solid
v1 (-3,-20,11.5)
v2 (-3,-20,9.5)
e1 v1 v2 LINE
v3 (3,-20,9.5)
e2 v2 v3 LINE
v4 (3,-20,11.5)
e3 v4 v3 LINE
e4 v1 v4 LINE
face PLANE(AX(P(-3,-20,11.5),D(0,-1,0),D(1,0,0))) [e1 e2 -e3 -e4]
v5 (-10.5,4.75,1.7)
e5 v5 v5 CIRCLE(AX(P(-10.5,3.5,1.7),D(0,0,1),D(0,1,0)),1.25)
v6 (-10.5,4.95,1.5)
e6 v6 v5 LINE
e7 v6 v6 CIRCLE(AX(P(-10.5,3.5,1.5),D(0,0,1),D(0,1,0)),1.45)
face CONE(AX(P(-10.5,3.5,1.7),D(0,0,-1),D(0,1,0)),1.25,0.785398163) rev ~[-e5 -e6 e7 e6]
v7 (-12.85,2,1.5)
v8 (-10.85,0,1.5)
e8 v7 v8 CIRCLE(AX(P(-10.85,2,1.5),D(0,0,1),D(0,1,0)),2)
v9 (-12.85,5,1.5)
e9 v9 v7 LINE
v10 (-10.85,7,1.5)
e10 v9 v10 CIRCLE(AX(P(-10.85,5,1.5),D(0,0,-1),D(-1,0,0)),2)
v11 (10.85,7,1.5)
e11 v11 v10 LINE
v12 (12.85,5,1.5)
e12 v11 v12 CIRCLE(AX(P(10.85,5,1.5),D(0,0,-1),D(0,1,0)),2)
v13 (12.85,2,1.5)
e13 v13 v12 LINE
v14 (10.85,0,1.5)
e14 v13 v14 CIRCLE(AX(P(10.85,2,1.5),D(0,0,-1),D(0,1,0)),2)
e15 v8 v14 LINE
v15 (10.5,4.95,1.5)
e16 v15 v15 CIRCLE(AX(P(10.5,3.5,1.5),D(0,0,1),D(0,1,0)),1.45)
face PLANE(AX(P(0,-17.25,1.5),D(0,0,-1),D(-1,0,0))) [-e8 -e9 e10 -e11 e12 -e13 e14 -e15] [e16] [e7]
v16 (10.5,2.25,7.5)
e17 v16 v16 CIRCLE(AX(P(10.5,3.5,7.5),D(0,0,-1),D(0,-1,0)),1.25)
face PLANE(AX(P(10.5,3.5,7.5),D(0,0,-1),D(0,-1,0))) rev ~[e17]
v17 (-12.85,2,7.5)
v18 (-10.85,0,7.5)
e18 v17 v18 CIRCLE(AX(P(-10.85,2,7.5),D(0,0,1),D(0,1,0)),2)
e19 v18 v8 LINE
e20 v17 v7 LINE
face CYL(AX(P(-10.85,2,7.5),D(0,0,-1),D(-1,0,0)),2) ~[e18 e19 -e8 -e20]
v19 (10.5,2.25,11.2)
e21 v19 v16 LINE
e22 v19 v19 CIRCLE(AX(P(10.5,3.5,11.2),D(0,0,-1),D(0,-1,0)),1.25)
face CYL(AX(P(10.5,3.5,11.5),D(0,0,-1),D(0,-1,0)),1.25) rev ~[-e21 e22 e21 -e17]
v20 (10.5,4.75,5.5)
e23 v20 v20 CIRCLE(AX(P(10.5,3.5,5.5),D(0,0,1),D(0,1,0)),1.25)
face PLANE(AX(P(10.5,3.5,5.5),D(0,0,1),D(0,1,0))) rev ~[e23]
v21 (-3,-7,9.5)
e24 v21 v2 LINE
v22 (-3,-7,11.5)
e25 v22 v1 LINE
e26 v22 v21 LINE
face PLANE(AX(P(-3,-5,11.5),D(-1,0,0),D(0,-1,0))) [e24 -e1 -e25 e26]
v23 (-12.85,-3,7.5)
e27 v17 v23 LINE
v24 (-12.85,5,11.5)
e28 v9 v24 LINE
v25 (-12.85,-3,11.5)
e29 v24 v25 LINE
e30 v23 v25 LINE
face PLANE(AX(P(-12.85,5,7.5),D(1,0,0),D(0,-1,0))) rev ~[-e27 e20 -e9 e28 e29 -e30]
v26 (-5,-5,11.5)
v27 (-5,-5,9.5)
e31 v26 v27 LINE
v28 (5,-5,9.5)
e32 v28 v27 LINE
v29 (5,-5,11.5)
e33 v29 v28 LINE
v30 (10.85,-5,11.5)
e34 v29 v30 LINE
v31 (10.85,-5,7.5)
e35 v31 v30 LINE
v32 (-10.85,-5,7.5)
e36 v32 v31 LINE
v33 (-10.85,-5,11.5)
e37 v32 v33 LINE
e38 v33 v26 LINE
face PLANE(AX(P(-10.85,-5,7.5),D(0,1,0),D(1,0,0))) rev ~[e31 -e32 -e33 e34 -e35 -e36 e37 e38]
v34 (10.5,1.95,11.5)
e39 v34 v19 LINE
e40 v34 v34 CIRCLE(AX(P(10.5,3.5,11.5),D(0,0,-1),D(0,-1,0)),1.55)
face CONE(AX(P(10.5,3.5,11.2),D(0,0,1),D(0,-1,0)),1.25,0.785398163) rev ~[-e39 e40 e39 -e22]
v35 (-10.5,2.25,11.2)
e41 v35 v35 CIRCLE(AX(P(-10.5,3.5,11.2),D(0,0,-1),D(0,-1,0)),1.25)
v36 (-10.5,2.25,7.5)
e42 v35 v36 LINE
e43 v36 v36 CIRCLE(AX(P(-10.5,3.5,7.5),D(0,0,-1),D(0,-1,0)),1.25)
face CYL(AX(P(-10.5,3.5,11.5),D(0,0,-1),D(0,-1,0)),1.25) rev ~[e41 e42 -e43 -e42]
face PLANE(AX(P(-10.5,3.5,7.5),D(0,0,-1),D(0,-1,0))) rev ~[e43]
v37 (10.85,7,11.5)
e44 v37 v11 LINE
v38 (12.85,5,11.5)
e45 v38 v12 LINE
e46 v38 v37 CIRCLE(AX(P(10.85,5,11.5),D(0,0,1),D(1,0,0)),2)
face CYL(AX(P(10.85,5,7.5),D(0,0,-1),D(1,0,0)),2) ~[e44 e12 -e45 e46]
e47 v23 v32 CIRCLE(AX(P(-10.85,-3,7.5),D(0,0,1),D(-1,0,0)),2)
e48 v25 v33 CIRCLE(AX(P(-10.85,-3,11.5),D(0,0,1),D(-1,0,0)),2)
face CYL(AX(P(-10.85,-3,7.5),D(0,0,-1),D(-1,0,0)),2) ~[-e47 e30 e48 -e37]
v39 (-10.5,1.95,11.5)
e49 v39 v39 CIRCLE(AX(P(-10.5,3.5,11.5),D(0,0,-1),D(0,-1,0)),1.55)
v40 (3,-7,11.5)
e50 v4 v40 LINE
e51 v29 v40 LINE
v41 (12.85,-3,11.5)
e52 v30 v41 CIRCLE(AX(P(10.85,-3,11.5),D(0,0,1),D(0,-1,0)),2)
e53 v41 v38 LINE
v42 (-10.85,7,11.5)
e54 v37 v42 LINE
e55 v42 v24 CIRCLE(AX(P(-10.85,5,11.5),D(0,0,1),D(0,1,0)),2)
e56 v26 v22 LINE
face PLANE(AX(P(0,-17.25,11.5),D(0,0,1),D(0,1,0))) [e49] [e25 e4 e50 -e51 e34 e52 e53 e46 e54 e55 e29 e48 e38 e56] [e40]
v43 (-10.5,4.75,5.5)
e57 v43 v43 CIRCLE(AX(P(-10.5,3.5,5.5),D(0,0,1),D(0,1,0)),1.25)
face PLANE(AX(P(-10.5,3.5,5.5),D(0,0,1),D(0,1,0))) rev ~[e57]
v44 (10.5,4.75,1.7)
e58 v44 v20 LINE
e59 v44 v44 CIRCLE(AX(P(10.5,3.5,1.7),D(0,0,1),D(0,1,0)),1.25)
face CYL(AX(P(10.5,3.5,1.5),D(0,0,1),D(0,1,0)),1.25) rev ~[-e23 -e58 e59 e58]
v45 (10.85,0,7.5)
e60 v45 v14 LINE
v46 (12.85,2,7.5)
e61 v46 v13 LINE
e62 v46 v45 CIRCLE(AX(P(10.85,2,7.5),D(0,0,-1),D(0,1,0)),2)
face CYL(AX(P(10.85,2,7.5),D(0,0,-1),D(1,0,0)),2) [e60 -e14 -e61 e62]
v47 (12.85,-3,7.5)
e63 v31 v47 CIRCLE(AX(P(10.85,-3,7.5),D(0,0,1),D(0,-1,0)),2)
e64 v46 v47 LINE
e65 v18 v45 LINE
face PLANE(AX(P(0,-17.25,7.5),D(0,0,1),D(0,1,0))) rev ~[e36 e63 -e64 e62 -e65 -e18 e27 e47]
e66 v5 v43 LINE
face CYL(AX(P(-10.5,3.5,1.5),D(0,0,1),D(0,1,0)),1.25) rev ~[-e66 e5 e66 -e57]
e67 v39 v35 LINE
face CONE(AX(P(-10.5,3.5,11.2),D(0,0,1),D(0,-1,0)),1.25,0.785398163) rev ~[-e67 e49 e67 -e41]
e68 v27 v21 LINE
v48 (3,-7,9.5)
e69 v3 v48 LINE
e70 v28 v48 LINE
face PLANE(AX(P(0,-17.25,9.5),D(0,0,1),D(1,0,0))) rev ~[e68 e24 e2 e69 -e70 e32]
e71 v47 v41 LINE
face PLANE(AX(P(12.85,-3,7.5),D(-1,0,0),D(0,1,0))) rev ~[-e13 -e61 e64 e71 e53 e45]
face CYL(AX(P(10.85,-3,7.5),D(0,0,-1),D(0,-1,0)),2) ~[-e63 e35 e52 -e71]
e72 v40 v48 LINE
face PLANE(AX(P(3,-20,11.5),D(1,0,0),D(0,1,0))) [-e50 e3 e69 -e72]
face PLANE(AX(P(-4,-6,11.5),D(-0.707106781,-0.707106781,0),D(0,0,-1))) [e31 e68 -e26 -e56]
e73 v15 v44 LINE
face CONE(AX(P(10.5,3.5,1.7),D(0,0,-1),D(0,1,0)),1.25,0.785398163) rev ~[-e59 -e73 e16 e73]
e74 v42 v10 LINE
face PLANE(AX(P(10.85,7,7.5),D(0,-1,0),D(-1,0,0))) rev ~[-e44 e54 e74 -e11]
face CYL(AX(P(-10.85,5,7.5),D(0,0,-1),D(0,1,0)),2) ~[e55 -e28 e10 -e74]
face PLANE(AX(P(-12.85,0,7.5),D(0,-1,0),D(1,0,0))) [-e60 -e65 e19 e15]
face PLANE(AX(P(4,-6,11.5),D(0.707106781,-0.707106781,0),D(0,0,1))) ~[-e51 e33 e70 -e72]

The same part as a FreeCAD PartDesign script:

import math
import FreeCAD as App
import Part
import Sketcher

V = App.Vector
Q = App.Units.Quantity


def edges_at(feature, points):
    """Names of the edges that pass closest to the given points."""
    edges = feature.Shape.Edges
    near = lambda p: min(range(len(edges)), key=lambda i: edges[i].distToShape(Part.Vertex(*p))[0])
    return sorted({f"Edge{near(p) + 1}" for p in points})


def add_polygon(sketch, points):
    """Adds a closed chain of lines whose ends are joined by coincident constraints."""
    first, n = sketch.GeometryCount, len(points)
    for a, b in zip(points, points[1:] + points[:1]):
        sketch.addGeometry(Part.LineSegment(App.Vector(*a, 0), App.Vector(*b, 0)), False)
    for i in range(n):
        sketch.addConstraint(Sketcher.Constraint("Coincident", first + i, 2, first + (i + 1) % n, 1))

doc = App.newDocument("Part")
body = doc.addObject("PartDesign::Body", "Body")

# Sketch on XY plane
sketch1 = doc.addObject("Sketcher::SketchObject", "Sketch")
body.addObject(sketch1)
sketch1.AttachmentSupport = (doc.XY_Plane, [""])
sketch1.MapMode = "FlatFace"
sketch1.AttachmentOffset = App.Placement(V(0, 0, 7.5), App.Rotation())
sketch1.addGeometry(Part.ArcOfCircle(Part.Circle(V(-10.8, 5, 0), V(0, 0, 1), 2), math.radians(90), math.radians(180)), False)
sketch1.addGeometry(Part.LineSegment(V(-12.8, 5, 0), V(-12.8, -3, 0)), False)
sketch1.addGeometry(Part.ArcOfCircle(Part.Circle(V(-10.8, -3, 0), V(0, 0, 1), 2), math.radians(180), math.radians(270)), False)
sketch1.addGeometry(Part.LineSegment(V(-10.8, -5, 0), V(10.8, -5, 0)), False)
sketch1.addGeometry(Part.ArcOfCircle(Part.Circle(V(10.8, -3, 0), V(0, 0, 1), 2), math.radians(-90), math.radians(0)), False)
sketch1.addGeometry(Part.LineSegment(V(12.8, -3, 0), V(12.8, 5, 0)), False)
sketch1.addGeometry(Part.ArcOfCircle(Part.Circle(V(10.8, 5, 0), V(0, 0, 1), 2), math.radians(0), math.radians(90)), False)
sketch1.addGeometry(Part.LineSegment(V(10.8, 7, 0), V(-10.8, 7, 0)), False)
sketch1.addConstraint(Sketcher.Constraint("Tangent", 0, 2, 1, 1))
sketch1.addConstraint(Sketcher.Constraint("Tangent", 1, 2, 2, 1))
sketch1.addConstraint(Sketcher.Constraint("Tangent", 2, 2, 3, 1))
sketch1.addConstraint(Sketcher.Constraint("Tangent", 3, 2, 4, 1))
sketch1.addConstraint(Sketcher.Constraint("Tangent", 4, 2, 5, 1))
sketch1.addConstraint(Sketcher.Constraint("Tangent", 5, 2, 6, 1))
sketch1.addConstraint(Sketcher.Constraint("Tangent", 6, 2, 7, 1))
sketch1.addConstraint(Sketcher.Constraint("Tangent", 7, 2, 0, 1))
sketch1.addConstraint(Sketcher.Constraint("Vertical", 1))
sketch1.addConstraint(Sketcher.Constraint("Horizontal", 3))
sketch1.addConstraint(Sketcher.Constraint("Vertical", 5))
sketch1.addConstraint(Sketcher.Constraint("Horizontal", 7))
sketch1.addConstraint(Sketcher.Constraint("Equal", 0, 2))
sketch1.addConstraint(Sketcher.Constraint("Equal", 2, 4))
sketch1.addConstraint(Sketcher.Constraint("Equal", 4, 6))
sketch1.addConstraint(Sketcher.Constraint("Radius", 0, Q("2 mm")))
sketch1.addConstraint(Sketcher.Constraint("DistanceY", -1, 1, 0, 3, Q("5 mm")))
sketch1.addConstraint(Sketcher.Constraint("DistanceY", 2, 2, -1, 1, Q("5 mm")))
sketch1.addConstraint(Sketcher.Constraint("DistanceX", 3, 1, 3, 2, Q("21.7 mm")))
sketch1.addConstraint(Sketcher.Constraint("DistanceX", 0, 3, -1, 1, Q("10.85 mm")))
pad1 = doc.addObject("PartDesign::Pad", "Pad")
body.addObject(pad1)
pad1.Profile = sketch1
pad1.Length = 4

# Sketch on XY plane
sketch2 = doc.addObject("Sketcher::SketchObject", "Sketch001")
body.addObject(sketch2)
sketch2.AttachmentSupport = (doc.XY_Plane, [""])
sketch2.MapMode = "FlatFace"
sketch2.AttachmentOffset = App.Placement(V(0, 0, 7.5), App.Rotation())
sketch2.addGeometry(Part.LineSegment(V(12.8, 5, 0), V(12.8, 0, 0)), False)
sketch2.addGeometry(Part.LineSegment(V(12.8, 0, 0), V(-12.8, 0, 0)), False)
sketch2.addGeometry(Part.LineSegment(V(-12.8, 0, 0), V(-12.8, 5, 0)), False)
sketch2.addGeometry(Part.ArcOfCircle(Part.Circle(V(-10.8, 5, 0), V(0, 0, 1), 2), math.radians(90), math.radians(180)), False)
sketch2.addGeometry(Part.LineSegment(V(-10.8, 7, 0), V(10.8, 7, 0)), False)
sketch2.addGeometry(Part.ArcOfCircle(Part.Circle(V(10.8, 5, 0), V(0, 0, 1), 2), math.radians(0), math.radians(90)), False)
sketch2.addConstraint(Sketcher.Constraint("Coincident", 0, 2, 1, 1))
sketch2.addConstraint(Sketcher.Constraint("Coincident", 1, 2, 2, 1))
sketch2.addConstraint(Sketcher.Constraint("Tangent", 2, 2, 3, 2))
sketch2.addConstraint(Sketcher.Constraint("Tangent", 3, 1, 4, 1))
sketch2.addConstraint(Sketcher.Constraint("Tangent", 4, 2, 5, 2))
sketch2.addConstraint(Sketcher.Constraint("Tangent", 5, 1, 0, 1))
sketch2.addConstraint(Sketcher.Constraint("Vertical", 0))
sketch2.addConstraint(Sketcher.Constraint("Horizontal", 1))
sketch2.addConstraint(Sketcher.Constraint("Vertical", 2))
sketch2.addConstraint(Sketcher.Constraint("Horizontal", 4))
sketch2.addConstraint(Sketcher.Constraint("Equal", 3, 5))
sketch2.addConstraint(Sketcher.Constraint("Symmetric", 0, 2, 1, 2, -1, 1))
sketch2.addConstraint(Sketcher.Constraint("Radius", 3, Q("2 mm")))
sketch2.addConstraint(Sketcher.Constraint("DistanceY", 0, 2, 0, 1, Q("5 mm")))
sketch2.addConstraint(Sketcher.Constraint("DistanceX", 1, 2, 1, 1, Q("25.7 mm")))
pad2 = doc.addObject("PartDesign::Pad", "Pad001")
body.addObject(pad2)
pad2.Profile = sketch2
pad2.Length = 6
pad2.Reversed = True
doc.recompute()

fillet = doc.addObject("PartDesign::Fillet", "Fillet")
body.addObject(fillet)
fillet.Base = (pad2, edges_at(pad2, [(-12.85, 0, 4.5), (12.85, 0, 4.5)]))
fillet.Radius = 2

# Sketch on XY plane
sketch3 = doc.addObject("Sketcher::SketchObject", "Sketch002")
body.addObject(sketch3)
sketch3.AttachmentSupport = (doc.XY_Plane, [""])
sketch3.MapMode = "FlatFace"
sketch3.AttachmentOffset = App.Placement(V(0, 0, 1.5), App.Rotation())
sketch3.addGeometry(Part.Circle(V(-10.5, 3.5, 0), V(0, 0, 1), 1.2), False)
sketch3.addGeometry(Part.Circle(V(10.5, 3.5, 0), V(0, 0, 1), 1.2), False)
sketch3.addConstraint(Sketcher.Constraint("Equal", 0, 1))
sketch3.addConstraint(Sketcher.Constraint("Symmetric", 0, 3, 1, 3, -2))
sketch3.addConstraint(Sketcher.Constraint("Diameter", 0, Q("2.5 mm")))
sketch3.addConstraint(Sketcher.Constraint("DistanceX", 0, 3, 1, 3, Q("21 mm")))
sketch3.addConstraint(Sketcher.Constraint("DistanceY", -1, 1, 0, 3, Q("3.5 mm")))
doc.recompute()
hole = doc.addObject("PartDesign::Hole", "Hole")
body.addObject(hole)
hole.Profile = sketch3
hole.ThreadType = "None"
hole.Diameter = 2.5
hole.DepthType = "Dimension"
hole.Depth = 4
hole.DrillPoint = "Flat"
hole.Reversed = True
doc.recompute()

chamfer = doc.addObject("PartDesign::Chamfer", "Chamfer")
body.addObject(chamfer)
chamfer.Base = (hole, edges_at(hole, [(10.5, 2.25, 1.5), (-10.5, 2.25, 1.5)]))
chamfer.Size = 0.2

# Sketch on XY plane
sketch4 = doc.addObject("Sketcher::SketchObject", "Sketch003")
body.addObject(sketch4)
sketch4.AttachmentSupport = (doc.XY_Plane, [""])
sketch4.MapMode = "FlatFace"
sketch4.AttachmentOffset = App.Placement(V(0, 0, 11.5), App.Rotation())
add_polygon(sketch4, [(3, -5), (-3, -5), (-3, -20), (3, -20)])  # lines 0-3
sketch4.addConstraint(Sketcher.Constraint("Horizontal", 0))
sketch4.addConstraint(Sketcher.Constraint("Vertical", 1))
sketch4.addConstraint(Sketcher.Constraint("Horizontal", 2))
sketch4.addConstraint(Sketcher.Constraint("Vertical", 3))
sketch4.addConstraint(Sketcher.Constraint("DistanceX", 0, 2, 0, 1, Q("6 mm")))
sketch4.addConstraint(Sketcher.Constraint("DistanceY", 1, 2, 1, 1, Q("15 mm")))
sketch4.addConstraint(Sketcher.Constraint("DistanceX", 0, 2, -1, 1, Q("3 mm")))
sketch4.addConstraint(Sketcher.Constraint("DistanceY", 0, 2, -1, 1, Q("5 mm")))
pad3 = doc.addObject("PartDesign::Pad", "Pad002")
body.addObject(pad3)
pad3.Profile = sketch4
pad3.Length = 2
pad3.Reversed = True
doc.recompute()

chamfer2 = doc.addObject("PartDesign::Chamfer", "Chamfer001")
body.addObject(chamfer2)
chamfer2.Base = (pad3, edges_at(pad3, [(-3, -5, 10.5), (3, -5, 10.5)]))
chamfer2.Size = 2

# Sketch on XY plane
sketch5 = doc.addObject("Sketcher::SketchObject", "Sketch004")
body.addObject(sketch5)
sketch5.AttachmentSupport = (doc.XY_Plane, [""])
sketch5.MapMode = "FlatFace"
sketch5.AttachmentOffset = App.Placement(V(0, 0, 11.5), App.Rotation())
sketch5.addGeometry(Part.Circle(V(10.5, 3.5, 0), V(0, 0, 1), 1.2), False)
sketch5.addGeometry(Part.Circle(V(-10.5, 3.5, 0), V(0, 0, 1), 1.2), False)
sketch5.addConstraint(Sketcher.Constraint("Equal", 0, 1))
sketch5.addConstraint(Sketcher.Constraint("Symmetric", 0, 3, 1, 3, -2))
sketch5.addConstraint(Sketcher.Constraint("Diameter", 0, Q("2.5 mm")))
sketch5.addConstraint(Sketcher.Constraint("DistanceX", 1, 3, 0, 3, Q("21 mm")))
sketch5.addConstraint(Sketcher.Constraint("DistanceY", -1, 1, 0, 3, Q("3.5 mm")))
doc.recompute()
hole2 = doc.addObject("PartDesign::Hole", "Hole001")
body.addObject(hole2)
hole2.Profile = sketch5
hole2.ThreadType = "None"
hole2.Diameter = 2.5
hole2.DepthType = "Dimension"
hole2.Depth = 4
hole2.DrillPoint = "Flat"
doc.recompute()

chamfer3 = doc.addObject("PartDesign::Chamfer", "Chamfer002")
body.addObject(chamfer3)
chamfer3.Base = (hole2, edges_at(hole2, [(10.5, 4.75, 11.5), (-10.5, 4.75, 11.5)]))
chamfer3.Size = 0.3

doc.recompute()
